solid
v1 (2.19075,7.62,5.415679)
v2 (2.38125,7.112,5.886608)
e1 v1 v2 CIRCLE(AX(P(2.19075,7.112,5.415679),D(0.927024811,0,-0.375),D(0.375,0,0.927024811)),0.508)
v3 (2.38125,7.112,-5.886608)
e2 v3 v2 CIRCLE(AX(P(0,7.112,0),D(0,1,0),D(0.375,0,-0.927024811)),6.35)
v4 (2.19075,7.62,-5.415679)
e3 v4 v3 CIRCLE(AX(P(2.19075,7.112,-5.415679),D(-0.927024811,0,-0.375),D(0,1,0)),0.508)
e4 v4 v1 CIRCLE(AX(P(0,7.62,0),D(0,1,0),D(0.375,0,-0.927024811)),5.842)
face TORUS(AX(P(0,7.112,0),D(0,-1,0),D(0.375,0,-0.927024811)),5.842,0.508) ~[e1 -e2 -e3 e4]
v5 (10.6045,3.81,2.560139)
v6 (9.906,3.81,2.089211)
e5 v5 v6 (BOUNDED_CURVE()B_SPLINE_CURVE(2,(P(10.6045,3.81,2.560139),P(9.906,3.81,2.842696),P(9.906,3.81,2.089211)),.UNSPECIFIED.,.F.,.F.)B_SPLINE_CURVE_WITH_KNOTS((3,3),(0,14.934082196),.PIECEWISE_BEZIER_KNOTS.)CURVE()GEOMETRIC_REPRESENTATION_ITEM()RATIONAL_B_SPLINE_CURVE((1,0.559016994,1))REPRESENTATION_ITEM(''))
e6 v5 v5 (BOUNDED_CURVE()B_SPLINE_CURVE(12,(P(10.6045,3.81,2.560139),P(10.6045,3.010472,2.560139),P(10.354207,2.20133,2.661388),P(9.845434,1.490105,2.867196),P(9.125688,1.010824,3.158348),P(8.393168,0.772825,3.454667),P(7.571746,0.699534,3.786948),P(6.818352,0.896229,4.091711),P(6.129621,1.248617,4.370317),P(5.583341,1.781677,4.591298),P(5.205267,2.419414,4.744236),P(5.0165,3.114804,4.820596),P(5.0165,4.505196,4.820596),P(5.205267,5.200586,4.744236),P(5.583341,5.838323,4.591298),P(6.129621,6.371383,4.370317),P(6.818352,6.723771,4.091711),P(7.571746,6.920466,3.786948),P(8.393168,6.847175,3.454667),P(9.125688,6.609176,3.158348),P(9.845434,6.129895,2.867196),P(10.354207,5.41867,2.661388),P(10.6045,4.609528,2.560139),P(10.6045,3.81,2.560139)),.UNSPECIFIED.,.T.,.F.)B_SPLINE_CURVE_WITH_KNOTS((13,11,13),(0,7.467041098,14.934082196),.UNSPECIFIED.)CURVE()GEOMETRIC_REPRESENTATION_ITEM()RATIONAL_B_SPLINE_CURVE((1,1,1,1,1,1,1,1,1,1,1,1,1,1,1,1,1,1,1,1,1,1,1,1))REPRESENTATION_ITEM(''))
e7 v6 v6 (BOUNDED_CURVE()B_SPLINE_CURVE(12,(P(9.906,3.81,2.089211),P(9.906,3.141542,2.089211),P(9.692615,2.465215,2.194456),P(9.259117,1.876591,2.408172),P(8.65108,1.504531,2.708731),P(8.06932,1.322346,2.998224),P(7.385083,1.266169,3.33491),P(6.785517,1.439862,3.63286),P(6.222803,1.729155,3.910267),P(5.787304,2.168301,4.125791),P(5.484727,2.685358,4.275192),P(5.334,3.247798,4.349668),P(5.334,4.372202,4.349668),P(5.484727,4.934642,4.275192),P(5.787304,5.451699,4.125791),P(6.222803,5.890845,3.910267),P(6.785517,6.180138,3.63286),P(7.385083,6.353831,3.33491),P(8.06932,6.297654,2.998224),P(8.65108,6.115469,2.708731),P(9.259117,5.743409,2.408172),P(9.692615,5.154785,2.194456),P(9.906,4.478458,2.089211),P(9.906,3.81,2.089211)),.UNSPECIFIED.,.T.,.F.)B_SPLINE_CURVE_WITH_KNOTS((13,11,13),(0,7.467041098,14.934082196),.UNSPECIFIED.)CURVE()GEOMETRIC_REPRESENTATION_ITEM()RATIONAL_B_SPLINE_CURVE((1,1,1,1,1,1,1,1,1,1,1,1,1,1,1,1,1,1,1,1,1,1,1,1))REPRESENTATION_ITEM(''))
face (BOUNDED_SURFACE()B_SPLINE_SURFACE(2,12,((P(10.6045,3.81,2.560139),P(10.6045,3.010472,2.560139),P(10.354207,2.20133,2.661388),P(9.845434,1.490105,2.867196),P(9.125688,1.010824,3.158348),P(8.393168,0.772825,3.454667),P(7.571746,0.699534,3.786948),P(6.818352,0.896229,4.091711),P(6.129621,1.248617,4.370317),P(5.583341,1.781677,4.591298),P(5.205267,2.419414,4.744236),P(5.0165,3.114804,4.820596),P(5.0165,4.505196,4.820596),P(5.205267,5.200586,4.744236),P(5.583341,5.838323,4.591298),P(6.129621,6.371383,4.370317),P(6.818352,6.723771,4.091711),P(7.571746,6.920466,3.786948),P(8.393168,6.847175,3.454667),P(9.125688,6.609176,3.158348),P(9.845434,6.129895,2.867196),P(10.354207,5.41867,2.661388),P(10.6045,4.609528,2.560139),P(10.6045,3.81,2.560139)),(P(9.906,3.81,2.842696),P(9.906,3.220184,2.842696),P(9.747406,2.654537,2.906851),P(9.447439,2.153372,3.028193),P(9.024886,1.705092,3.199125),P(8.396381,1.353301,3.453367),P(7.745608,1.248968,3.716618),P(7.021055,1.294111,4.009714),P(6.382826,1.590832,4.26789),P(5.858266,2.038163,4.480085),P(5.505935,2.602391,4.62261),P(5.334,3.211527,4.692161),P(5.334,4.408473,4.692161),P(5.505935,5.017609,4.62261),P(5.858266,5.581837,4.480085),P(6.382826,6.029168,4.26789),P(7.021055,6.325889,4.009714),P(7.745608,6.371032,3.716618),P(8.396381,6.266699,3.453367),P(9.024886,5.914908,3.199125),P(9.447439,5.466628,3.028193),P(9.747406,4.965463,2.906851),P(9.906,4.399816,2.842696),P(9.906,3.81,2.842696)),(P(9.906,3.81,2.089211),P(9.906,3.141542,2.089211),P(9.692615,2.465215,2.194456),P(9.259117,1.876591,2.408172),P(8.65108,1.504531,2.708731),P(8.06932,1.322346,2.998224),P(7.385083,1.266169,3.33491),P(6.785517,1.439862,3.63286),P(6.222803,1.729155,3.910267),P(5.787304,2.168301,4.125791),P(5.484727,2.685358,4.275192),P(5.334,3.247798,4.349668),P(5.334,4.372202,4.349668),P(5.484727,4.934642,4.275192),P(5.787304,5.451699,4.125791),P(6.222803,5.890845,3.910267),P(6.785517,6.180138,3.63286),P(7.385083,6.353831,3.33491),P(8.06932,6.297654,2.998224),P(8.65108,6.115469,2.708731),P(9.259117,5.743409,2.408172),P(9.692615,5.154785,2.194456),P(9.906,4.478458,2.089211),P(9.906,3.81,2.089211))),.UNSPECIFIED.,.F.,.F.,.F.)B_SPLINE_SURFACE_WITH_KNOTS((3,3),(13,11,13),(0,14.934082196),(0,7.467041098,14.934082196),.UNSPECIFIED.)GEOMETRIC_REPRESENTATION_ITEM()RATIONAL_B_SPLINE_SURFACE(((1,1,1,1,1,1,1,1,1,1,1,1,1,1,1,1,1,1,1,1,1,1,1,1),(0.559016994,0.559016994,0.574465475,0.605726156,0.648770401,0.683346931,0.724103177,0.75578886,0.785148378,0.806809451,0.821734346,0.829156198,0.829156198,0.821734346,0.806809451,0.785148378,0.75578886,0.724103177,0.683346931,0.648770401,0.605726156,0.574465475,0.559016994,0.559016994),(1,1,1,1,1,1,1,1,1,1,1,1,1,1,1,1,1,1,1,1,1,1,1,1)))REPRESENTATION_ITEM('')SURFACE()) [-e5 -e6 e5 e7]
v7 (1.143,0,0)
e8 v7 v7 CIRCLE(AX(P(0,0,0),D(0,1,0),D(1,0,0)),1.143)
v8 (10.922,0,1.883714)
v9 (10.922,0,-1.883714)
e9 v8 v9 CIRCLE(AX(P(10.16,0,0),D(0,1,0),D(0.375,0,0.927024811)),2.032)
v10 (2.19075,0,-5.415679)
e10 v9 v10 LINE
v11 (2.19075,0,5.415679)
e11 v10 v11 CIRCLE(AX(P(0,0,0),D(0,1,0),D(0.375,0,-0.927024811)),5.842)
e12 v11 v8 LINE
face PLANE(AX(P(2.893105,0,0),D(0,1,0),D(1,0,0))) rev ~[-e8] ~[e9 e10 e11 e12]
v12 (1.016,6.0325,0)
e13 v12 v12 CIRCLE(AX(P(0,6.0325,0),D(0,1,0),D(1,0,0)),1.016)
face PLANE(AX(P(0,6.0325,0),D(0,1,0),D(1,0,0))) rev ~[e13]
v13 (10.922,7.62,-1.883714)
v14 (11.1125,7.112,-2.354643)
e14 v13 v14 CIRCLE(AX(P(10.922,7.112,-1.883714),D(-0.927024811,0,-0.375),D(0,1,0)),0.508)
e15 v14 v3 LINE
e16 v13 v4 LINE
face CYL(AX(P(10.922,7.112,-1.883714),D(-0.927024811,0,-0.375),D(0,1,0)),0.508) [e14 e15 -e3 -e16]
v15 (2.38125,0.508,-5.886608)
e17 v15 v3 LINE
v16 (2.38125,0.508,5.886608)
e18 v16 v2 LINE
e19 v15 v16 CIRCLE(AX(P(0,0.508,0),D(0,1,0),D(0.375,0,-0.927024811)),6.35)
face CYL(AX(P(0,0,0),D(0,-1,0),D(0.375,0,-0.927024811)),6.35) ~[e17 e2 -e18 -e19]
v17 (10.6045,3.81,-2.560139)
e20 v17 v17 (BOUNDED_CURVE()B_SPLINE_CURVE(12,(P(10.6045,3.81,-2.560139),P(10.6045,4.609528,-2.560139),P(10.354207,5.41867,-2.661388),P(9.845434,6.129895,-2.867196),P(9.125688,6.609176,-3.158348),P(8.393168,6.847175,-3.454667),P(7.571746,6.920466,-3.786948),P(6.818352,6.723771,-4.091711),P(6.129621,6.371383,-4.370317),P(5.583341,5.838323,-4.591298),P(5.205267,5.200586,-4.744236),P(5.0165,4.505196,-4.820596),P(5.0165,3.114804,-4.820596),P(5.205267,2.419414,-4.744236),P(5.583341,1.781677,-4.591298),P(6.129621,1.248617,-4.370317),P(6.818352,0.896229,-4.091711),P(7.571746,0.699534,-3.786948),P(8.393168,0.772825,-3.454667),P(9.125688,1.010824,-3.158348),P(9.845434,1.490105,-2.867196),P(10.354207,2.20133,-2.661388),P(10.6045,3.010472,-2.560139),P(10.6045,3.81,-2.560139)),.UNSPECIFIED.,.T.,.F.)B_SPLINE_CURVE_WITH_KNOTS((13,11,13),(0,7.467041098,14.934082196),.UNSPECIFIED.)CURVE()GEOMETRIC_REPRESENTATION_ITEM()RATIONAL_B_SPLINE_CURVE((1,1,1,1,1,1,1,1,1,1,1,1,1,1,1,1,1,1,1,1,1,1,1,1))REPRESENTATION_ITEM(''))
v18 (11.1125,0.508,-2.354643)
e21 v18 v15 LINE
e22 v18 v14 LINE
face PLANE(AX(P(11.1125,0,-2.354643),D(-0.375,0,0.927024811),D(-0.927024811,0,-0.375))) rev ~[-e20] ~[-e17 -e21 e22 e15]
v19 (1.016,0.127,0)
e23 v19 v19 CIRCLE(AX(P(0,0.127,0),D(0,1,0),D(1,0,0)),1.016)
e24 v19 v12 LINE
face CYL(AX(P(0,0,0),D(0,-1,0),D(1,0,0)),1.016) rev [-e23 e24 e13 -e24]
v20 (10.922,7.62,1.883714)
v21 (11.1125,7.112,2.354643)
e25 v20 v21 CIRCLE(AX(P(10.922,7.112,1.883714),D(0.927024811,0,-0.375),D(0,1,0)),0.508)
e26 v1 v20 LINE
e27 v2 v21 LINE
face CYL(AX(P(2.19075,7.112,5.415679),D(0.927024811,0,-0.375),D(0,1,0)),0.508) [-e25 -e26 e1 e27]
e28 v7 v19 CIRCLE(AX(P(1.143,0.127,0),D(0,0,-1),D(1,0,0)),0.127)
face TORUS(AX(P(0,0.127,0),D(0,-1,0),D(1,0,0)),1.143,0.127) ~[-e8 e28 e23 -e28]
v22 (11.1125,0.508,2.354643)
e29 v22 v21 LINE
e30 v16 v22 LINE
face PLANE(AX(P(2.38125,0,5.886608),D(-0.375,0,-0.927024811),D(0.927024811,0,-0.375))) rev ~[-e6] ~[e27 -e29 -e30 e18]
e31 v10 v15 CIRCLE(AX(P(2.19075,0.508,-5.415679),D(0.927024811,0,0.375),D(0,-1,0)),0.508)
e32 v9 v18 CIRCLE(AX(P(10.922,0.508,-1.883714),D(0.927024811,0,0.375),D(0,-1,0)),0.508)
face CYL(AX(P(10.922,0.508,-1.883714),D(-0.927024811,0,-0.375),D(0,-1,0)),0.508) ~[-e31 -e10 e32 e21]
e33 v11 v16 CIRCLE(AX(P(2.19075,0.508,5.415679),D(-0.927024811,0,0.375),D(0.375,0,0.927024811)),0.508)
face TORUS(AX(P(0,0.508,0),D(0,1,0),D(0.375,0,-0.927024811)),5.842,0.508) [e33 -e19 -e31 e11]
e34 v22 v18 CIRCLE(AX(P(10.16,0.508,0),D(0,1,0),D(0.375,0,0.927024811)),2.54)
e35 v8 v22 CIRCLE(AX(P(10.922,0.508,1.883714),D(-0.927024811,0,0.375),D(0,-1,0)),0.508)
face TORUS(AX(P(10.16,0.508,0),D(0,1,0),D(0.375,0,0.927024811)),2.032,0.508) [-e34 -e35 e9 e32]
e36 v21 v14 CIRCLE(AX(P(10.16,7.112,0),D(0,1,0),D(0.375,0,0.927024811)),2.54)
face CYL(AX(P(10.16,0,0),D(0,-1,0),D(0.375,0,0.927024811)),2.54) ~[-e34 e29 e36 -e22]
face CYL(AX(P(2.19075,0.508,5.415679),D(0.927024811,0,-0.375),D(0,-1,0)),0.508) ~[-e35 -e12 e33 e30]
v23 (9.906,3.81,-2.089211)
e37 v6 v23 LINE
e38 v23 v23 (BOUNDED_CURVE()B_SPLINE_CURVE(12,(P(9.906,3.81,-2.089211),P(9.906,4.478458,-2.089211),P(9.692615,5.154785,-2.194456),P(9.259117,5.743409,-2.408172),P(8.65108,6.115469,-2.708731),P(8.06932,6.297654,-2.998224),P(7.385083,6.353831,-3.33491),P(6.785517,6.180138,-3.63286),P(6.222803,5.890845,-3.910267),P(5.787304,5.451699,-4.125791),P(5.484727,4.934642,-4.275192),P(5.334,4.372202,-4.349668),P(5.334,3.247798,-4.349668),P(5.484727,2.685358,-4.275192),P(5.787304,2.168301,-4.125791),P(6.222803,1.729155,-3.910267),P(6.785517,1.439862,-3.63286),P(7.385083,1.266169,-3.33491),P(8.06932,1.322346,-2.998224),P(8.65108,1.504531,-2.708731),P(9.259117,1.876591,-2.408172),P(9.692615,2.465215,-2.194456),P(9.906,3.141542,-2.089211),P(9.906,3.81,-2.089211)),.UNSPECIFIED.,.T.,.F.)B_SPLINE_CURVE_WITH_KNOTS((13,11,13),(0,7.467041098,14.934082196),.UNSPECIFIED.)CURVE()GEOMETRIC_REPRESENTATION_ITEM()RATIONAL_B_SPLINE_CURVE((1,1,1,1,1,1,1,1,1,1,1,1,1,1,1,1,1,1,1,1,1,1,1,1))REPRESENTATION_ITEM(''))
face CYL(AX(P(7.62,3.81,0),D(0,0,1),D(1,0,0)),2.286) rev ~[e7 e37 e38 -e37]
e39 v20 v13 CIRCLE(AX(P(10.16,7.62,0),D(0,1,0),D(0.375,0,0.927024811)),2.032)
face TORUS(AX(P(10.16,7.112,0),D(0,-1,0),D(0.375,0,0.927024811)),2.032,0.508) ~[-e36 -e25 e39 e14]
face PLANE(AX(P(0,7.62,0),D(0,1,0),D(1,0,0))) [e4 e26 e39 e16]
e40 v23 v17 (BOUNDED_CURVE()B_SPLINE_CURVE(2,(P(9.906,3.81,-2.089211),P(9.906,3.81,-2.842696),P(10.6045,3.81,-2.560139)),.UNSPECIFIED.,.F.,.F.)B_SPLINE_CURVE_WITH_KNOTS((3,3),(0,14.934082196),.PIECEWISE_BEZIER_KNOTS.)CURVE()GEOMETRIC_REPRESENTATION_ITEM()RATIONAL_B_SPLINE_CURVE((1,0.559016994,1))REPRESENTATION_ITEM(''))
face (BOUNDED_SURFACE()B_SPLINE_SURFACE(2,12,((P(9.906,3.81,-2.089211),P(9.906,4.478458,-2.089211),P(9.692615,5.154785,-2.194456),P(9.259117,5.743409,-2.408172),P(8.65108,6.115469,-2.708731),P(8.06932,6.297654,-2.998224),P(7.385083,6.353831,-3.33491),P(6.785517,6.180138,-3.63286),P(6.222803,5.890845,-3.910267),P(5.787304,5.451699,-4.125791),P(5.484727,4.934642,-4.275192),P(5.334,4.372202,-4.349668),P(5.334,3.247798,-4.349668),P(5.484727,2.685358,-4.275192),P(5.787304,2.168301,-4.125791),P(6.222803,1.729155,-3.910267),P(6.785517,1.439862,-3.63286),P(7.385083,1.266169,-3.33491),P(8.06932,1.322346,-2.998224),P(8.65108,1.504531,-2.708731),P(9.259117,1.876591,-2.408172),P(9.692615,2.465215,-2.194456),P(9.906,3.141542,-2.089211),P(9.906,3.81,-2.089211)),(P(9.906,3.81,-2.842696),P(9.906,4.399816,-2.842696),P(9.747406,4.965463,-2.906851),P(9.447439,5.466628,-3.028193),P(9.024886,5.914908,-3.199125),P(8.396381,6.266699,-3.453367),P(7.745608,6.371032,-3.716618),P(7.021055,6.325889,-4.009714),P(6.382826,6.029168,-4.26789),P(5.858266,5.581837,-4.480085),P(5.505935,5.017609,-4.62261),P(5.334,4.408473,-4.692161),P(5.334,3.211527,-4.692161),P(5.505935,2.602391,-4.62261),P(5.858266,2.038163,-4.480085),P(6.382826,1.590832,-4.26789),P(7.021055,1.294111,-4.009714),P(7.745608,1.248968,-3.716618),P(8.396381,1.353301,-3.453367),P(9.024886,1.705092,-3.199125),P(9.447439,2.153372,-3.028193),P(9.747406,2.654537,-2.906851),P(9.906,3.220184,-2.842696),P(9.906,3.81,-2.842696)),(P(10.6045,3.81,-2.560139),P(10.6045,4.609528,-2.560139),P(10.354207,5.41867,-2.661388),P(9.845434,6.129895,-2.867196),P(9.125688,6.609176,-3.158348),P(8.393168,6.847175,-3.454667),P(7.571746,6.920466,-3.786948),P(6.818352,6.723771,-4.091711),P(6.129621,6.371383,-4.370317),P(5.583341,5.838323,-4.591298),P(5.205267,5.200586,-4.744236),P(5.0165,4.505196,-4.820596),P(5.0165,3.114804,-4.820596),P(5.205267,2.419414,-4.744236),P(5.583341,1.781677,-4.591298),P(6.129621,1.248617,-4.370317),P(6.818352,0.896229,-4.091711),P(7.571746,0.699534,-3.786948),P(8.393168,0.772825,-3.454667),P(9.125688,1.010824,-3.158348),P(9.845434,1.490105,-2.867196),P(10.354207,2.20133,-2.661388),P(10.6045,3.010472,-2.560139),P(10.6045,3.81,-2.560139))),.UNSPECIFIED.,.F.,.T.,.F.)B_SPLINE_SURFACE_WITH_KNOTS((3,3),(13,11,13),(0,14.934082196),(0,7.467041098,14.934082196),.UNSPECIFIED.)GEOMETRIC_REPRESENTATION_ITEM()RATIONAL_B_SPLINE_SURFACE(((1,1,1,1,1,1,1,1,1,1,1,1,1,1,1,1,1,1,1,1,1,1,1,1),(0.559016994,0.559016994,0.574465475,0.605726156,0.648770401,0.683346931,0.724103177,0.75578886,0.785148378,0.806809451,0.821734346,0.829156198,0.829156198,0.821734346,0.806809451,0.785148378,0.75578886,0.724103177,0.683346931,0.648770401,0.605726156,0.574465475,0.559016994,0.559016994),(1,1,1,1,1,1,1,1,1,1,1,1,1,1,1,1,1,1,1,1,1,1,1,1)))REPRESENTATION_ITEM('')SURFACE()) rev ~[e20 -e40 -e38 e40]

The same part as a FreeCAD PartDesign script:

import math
import FreeCAD as App
import Part
import Sketcher
from FreeCAD import Vector
Q = App.Units.Quantity


def edges_at(feature, points):
    """Names of the edges that pass closest to the given points."""
    edges = feature.Shape.Edges
    near = lambda p: min(range(len(edges)), key=lambda i: edges[i].distToShape(Part.Vertex(*p))[0])
    return sorted({f"Edge{near(p) + 1}" for p in points})

doc = App.newDocument("Part")
body = doc.addObject("PartDesign::Body", "Body")

sketch1 = body.newObject("Sketcher::SketchObject", "Sketch")
sketch1.AttachmentSupport = (doc.getObject("XZ_Plane"), [""])
sketch1.MapMode = "FlatFace"
sketch1.addGeometry([
    Part.LineSegment(Vector(11.1, -2.4, 0), Vector(2.4, -5.9, 0)),
    Part.ArcOfCircle(Part.Circle(Vector(0, 0, 0), Vector(0, 0, 1), 6.3), math.radians(68), math.radians(292)),
    Part.LineSegment(Vector(2.4, 5.9, 0), Vector(11.1, 2.4, 0)),
    Part.ArcOfCircle(Part.Circle(Vector(10.2, 0, 0), Vector(0, 0, 1), 2.5), math.radians(-68), math.radians(68)),
    Part.Circle(Vector(0, 0, 0), Vector(0, 0, 1), 1),
], False)
sketch1.addConstraint([
    Sketcher.Constraint("Tangent", 0, 2, 1, 2),
    Sketcher.Constraint("Tangent", 1, 1, 2, 1),
    Sketcher.Constraint("Tangent", 2, 2, 3, 2),
    Sketcher.Constraint("Tangent", 3, 1, 0, 1),
    Sketcher.Constraint("Coincident", 1, 3, -1, 1),
    Sketcher.Constraint("Coincident", 4, 3, -1, 1),
    Sketcher.Constraint("PointOnObject", 3, 3, -1),
    Sketcher.Constraint("Radius", 3, Q("0.1 in")),
    Sketcher.Constraint("Diameter", 4, Q("0.08 in")),
    Sketcher.Constraint("Radius", 1, Q("0.25 in")),
    Sketcher.Constraint("DistanceX", -1, 1, 3, 3, Q("0.4 in")),
])
pad1 = body.newObject("PartDesign::Pad", "Pad")
pad1.Profile = sketch1
pad1.Length = Q("0.3 in")
pad1.Reversed = True

sketch2 = body.newObject("Sketcher::SketchObject", "Sketch001")
sketch2.AttachmentSupport = (doc.getObject("XZ_Plane"), [""])
sketch2.MapMode = "FlatFace"
sketch2.AttachmentOffset = App.Placement(Vector(0, 0, -0.3 * 25.4), App.Rotation())
sketch2.addGeometry(Part.Circle(Vector(0, 0, 0), Vector(0, 0, 1), 1), False)
sketch2.addConstraint([
    Sketcher.Constraint("Coincident", 0, 3, -1, 1),
    Sketcher.Constraint("Diameter", 0, Q("0.08 in")),
])
pad2 = body.newObject("PartDesign::Pad", "Pad001")
pad2.Profile = sketch2
pad2.Length = Q("0.0625 in")

sketch3 = body.newObject("Sketcher::SketchObject", "Sketch002")
sketch3.AttachmentSupport = (doc.getObject("XY_Plane"), [""])
sketch3.MapMode = "FlatFace"
sketch3.addGeometry(Part.Circle(Vector(7.6, 3.8, 0), Vector(0, 0, 1), 2.3), False)
sketch3.addConstraint([
    Sketcher.Constraint("Diameter", 0, Q("0.18 in")),
    Sketcher.Constraint("DistanceX", -1, 1, 0, 3, Q("0.3 in")),
    Sketcher.Constraint("DistanceY", -1, 1, 0, 3, Q("0.15 in")),
])
pocket1 = body.newObject("PartDesign::Pocket", "Pocket")
pocket1.Profile = sketch3
pocket1.Type = "ThroughAll"
pocket1.Midplane = True
doc.recompute()

fillet = body.newObject("PartDesign::Fillet", "Fillet")
fillet.Base = (pocket1, edges_at(pocket1, [
    (6.747, 0, -4.121),
    (6.747, 7.62, -4.121),
    (5.334, 3.81, -4.692),
    (5.334, 3.81, 4.692),
    (6.747, 0, 4.121),
    (6.747, 7.62, 4.121),
    (-6.35, 0, 0),
    (-6.35, 7.62, 0),
    (12.7, 7.62, 0),
    (12.7, 0, 0),
]))
fillet.Radius = Q("0.02 in")
doc.recompute()

fillet2 = body.newObject("PartDesign::Fillet", "Fillet001")
fillet2.Base = (fillet, edges_at(fillet, [(-1.016, 0, 0)]))
fillet2.Radius = Q("0.005 in")

doc.recompute()
